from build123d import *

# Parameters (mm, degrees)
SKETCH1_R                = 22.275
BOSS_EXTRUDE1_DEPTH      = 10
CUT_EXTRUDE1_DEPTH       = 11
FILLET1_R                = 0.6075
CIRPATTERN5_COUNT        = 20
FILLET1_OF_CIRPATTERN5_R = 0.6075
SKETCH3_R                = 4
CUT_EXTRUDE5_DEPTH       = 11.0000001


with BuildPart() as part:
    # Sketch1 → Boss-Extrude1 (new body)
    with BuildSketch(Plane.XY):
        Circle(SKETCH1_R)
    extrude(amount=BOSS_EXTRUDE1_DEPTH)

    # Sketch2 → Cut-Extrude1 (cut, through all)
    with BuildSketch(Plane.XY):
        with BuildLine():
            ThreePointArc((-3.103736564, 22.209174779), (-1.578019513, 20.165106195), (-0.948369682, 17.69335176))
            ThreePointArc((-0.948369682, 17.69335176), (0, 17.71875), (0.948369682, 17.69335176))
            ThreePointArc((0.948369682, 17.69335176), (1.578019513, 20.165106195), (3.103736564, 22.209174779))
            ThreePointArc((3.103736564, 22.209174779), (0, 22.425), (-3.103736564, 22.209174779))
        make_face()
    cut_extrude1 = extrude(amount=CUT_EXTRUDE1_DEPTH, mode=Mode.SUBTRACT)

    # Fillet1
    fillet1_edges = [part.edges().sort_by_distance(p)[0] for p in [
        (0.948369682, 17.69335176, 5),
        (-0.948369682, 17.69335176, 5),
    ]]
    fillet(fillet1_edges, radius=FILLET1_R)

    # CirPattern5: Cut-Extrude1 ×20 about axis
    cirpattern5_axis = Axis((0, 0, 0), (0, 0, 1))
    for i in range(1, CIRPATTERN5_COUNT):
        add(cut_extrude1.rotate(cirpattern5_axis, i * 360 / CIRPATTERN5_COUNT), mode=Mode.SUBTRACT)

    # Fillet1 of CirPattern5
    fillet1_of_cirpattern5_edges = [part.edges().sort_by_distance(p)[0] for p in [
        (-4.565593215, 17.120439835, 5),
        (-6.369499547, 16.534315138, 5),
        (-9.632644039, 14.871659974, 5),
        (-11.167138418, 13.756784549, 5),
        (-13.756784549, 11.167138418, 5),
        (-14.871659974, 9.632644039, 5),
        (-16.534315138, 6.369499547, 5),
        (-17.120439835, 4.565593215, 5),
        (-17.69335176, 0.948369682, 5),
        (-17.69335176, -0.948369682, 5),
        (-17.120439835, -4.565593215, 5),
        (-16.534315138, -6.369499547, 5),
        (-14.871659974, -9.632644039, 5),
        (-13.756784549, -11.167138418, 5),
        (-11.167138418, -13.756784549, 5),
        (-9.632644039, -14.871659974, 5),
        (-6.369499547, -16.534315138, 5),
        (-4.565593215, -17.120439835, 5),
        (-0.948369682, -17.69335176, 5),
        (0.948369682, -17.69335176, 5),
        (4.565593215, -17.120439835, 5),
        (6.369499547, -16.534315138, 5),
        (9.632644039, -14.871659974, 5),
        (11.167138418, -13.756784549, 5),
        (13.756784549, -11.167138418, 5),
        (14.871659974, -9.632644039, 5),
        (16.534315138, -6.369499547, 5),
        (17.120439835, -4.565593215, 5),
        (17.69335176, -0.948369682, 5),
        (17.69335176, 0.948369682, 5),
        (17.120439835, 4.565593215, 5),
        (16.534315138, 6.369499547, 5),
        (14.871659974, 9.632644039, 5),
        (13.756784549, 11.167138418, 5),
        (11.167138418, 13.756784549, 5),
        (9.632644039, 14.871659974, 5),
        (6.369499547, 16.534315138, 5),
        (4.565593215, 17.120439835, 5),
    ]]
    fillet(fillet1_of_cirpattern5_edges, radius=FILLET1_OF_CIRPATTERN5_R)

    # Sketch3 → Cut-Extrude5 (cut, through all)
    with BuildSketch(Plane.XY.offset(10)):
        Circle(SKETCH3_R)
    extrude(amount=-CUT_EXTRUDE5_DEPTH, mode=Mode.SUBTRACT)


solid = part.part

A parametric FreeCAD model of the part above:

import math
import FreeCAD as App
import Part
import Sketcher
from FreeCAD import Vector


def edges_at(feature, points):
    """Names of the edges that pass closest to the given points."""
    edges = feature.Shape.Edges
    near = lambda p: min(range(len(edges)), key=lambda i: edges[i].distToShape(Part.Vertex(*p))[0])
    return sorted({f"Edge{near(p) + 1}" for p in points})

doc = App.newDocument("Part")
body = doc.addObject("PartDesign::Body", "Body")

sketch1 = doc.addObject("Sketcher::SketchObject", "Sketch")
body.addObject(sketch1)
sketch1.AttachmentSupport = (doc.XY_Plane, [""])
sketch1.MapMode = "FlatFace"
sketch1.addGeometry(Part.Circle(Vector(0, 0, 0), Vector(0, 0, 1), 22.275), False)
sketch1.addConstraint([
    Sketcher.Constraint("Coincident", 0, 3, -1, 1),
    Sketcher.Constraint("Diameter", 0, 44.55),
])
pad1 = doc.addObject("PartDesign::Pad", "Pad")
body.addObject(pad1)
pad1.Profile = sketch1
pad1.Length = 10

sketch2 = doc.addObject("Sketcher::SketchObject", "Sketch001")
body.addObject(sketch2)
sketch2.AttachmentSupport = (doc.XY_Plane, [""])
sketch2.MapMode = "FlatFace"
sketch2.addGeometry([
    Part.ArcOfCircle(Part.Circle(Vector(-7.491525, 17.342636, 0), Vector(0, 0, 1), 6.552548), math.radians(3.068137), math.radians(47.961416)),
    Part.ArcOfCircle(Part.Circle(Vector(0, 0, 0), Vector(0, 0, 1), 17.71875), math.radians(86.931863), math.radians(93.068137)),
    Part.ArcOfCircle(Part.Circle(Vector(7.491525, 17.342636, 0), Vector(0, 0, 1), 6.552548), math.radians(132.038584), math.radians(176.931863)),
    Part.ArcOfCircle(Part.Circle(Vector(0, 0, 0), Vector(0, 0, 1), 22.425), math.radians(82.044428), math.radians(97.955572)),
], False)
sketch2.addConstraint([
    Sketcher.Constraint("Coincident", 0, 1, 1, 2),
    Sketcher.Constraint("Coincident", 1, 1, 2, 2),
    Sketcher.Constraint("Coincident", 2, 1, 3, 1),
    Sketcher.Constraint("Coincident", 3, 2, 0, 2),
    Sketcher.Constraint("Coincident", 1, 3, -1, 1),
    Sketcher.Constraint("Coincident", 3, 3, -1, 1),
    Sketcher.Constraint("Equal", 0, 2),
    Sketcher.Constraint("Symmetric", 0, 3, 2, 3, -2),
    Sketcher.Constraint("Radius", 3, 22.425),
    Sketcher.Constraint("Radius", 1, 17.71875),
    Sketcher.Constraint("Radius", 0, 6.552548),
    Sketcher.Constraint("DistanceX", 0, 1, -1, 1, 0.94837),
    Sketcher.Constraint("DistanceX", 0, 3, 2, 3, 14.98305),
])
pocket1 = doc.addObject("PartDesign::Pocket", "Pocket")
body.addObject(pocket1)
pocket1.Profile = sketch2
pocket1.Type = "ThroughAll"
pocket1.Reversed = True
doc.recompute()

fillet = doc.addObject("PartDesign::Fillet", "Fillet")
body.addObject(fillet)
fillet.Base = (pocket1, edges_at(pocket1, [(0.948, 17.693, 5), (-0.948, 17.693, 5)]))
fillet.Radius = 0.6075
doc.recompute()

polarpattern = doc.addObject("PartDesign::PolarPattern", "PolarPattern")
body.addObject(polarpattern)
polarpattern.Originals = [pocket1]
polarpattern.Axis = (doc.Z_Axis, [""])
polarpattern.Angle = 360
polarpattern.Occurrences = 20
body.Tip = polarpattern
doc.recompute()

fillet2 = doc.addObject("PartDesign::Fillet", "Fillet001")
body.addObject(fillet2)
fillet2.Base = (polarpattern, edges_at(polarpattern, [
    (-4.566, 17.12, 5),
    (-6.369, 16.534, 5),
    (-9.633, 14.872, 5),
    (-11.167, 13.757, 5),
    (-13.757, 11.167, 5),
    (-14.872, 9.633, 5),
    (-16.534, 6.369, 5),
    (-17.12, 4.566, 5),
    (-17.693, 0.948, 5),
    (-17.693, -0.948, 5),
    (-17.12, -4.566, 5),
    (-16.534, -6.369, 5),
    (-14.872, -9.633, 5),
    (-13.757, -11.167, 5),
    (-11.167, -13.757, 5),
    (-9.633, -14.872, 5),
    (-6.369, -16.534, 5),
    (-4.566, -17.12, 5),
    (-0.948, -17.693, 5),
    (0.948, -17.693, 5),
    (4.566, -17.12, 5),
    (6.369, -16.534, 5),
    (9.633, -14.872, 5),
    (11.167, -13.757, 5),
    (13.757, -11.167, 5),
    (14.872, -9.633, 5),
    (16.534, -6.369, 5),
    (17.12, -4.566, 5),
    (17.693, -0.948, 5),
    (17.693, 0.948, 5),
    (17.12, 4.566, 5),
    (16.534, 6.369, 5),
    (14.872, 9.633, 5),
    (13.757, 11.167, 5),
    (11.167, 13.757, 5),
    (9.633, 14.872, 5),
    (6.369, 16.534, 5),
    (4.566, 17.12, 5),
]))
fillet2.Radius = 0.6075

sketch3 = doc.addObject("Sketcher::SketchObject", "Sketch002")
body.addObject(sketch3)
sketch3.AttachmentSupport = (doc.XY_Plane, [""])
sketch3.MapMode = "FlatFace"
sketch3.AttachmentOffset = App.Placement(Vector(0, 0, 10), App.Rotation())
sketch3.addGeometry(Part.Circle(Vector(0, 0, 0), Vector(0, 0, 1), 4), False)
sketch3.addConstraint([
    Sketcher.Constraint("Coincident", 0, 3, -1, 1),
    Sketcher.Constraint("Diameter", 0, 8.0),
])
pocket2 = doc.addObject("PartDesign::Pocket", "Pocket001")
body.addObject(pocket2)
pocket2.Profile = sketch3
pocket2.Type = "ThroughAll"

doc.recompute()
